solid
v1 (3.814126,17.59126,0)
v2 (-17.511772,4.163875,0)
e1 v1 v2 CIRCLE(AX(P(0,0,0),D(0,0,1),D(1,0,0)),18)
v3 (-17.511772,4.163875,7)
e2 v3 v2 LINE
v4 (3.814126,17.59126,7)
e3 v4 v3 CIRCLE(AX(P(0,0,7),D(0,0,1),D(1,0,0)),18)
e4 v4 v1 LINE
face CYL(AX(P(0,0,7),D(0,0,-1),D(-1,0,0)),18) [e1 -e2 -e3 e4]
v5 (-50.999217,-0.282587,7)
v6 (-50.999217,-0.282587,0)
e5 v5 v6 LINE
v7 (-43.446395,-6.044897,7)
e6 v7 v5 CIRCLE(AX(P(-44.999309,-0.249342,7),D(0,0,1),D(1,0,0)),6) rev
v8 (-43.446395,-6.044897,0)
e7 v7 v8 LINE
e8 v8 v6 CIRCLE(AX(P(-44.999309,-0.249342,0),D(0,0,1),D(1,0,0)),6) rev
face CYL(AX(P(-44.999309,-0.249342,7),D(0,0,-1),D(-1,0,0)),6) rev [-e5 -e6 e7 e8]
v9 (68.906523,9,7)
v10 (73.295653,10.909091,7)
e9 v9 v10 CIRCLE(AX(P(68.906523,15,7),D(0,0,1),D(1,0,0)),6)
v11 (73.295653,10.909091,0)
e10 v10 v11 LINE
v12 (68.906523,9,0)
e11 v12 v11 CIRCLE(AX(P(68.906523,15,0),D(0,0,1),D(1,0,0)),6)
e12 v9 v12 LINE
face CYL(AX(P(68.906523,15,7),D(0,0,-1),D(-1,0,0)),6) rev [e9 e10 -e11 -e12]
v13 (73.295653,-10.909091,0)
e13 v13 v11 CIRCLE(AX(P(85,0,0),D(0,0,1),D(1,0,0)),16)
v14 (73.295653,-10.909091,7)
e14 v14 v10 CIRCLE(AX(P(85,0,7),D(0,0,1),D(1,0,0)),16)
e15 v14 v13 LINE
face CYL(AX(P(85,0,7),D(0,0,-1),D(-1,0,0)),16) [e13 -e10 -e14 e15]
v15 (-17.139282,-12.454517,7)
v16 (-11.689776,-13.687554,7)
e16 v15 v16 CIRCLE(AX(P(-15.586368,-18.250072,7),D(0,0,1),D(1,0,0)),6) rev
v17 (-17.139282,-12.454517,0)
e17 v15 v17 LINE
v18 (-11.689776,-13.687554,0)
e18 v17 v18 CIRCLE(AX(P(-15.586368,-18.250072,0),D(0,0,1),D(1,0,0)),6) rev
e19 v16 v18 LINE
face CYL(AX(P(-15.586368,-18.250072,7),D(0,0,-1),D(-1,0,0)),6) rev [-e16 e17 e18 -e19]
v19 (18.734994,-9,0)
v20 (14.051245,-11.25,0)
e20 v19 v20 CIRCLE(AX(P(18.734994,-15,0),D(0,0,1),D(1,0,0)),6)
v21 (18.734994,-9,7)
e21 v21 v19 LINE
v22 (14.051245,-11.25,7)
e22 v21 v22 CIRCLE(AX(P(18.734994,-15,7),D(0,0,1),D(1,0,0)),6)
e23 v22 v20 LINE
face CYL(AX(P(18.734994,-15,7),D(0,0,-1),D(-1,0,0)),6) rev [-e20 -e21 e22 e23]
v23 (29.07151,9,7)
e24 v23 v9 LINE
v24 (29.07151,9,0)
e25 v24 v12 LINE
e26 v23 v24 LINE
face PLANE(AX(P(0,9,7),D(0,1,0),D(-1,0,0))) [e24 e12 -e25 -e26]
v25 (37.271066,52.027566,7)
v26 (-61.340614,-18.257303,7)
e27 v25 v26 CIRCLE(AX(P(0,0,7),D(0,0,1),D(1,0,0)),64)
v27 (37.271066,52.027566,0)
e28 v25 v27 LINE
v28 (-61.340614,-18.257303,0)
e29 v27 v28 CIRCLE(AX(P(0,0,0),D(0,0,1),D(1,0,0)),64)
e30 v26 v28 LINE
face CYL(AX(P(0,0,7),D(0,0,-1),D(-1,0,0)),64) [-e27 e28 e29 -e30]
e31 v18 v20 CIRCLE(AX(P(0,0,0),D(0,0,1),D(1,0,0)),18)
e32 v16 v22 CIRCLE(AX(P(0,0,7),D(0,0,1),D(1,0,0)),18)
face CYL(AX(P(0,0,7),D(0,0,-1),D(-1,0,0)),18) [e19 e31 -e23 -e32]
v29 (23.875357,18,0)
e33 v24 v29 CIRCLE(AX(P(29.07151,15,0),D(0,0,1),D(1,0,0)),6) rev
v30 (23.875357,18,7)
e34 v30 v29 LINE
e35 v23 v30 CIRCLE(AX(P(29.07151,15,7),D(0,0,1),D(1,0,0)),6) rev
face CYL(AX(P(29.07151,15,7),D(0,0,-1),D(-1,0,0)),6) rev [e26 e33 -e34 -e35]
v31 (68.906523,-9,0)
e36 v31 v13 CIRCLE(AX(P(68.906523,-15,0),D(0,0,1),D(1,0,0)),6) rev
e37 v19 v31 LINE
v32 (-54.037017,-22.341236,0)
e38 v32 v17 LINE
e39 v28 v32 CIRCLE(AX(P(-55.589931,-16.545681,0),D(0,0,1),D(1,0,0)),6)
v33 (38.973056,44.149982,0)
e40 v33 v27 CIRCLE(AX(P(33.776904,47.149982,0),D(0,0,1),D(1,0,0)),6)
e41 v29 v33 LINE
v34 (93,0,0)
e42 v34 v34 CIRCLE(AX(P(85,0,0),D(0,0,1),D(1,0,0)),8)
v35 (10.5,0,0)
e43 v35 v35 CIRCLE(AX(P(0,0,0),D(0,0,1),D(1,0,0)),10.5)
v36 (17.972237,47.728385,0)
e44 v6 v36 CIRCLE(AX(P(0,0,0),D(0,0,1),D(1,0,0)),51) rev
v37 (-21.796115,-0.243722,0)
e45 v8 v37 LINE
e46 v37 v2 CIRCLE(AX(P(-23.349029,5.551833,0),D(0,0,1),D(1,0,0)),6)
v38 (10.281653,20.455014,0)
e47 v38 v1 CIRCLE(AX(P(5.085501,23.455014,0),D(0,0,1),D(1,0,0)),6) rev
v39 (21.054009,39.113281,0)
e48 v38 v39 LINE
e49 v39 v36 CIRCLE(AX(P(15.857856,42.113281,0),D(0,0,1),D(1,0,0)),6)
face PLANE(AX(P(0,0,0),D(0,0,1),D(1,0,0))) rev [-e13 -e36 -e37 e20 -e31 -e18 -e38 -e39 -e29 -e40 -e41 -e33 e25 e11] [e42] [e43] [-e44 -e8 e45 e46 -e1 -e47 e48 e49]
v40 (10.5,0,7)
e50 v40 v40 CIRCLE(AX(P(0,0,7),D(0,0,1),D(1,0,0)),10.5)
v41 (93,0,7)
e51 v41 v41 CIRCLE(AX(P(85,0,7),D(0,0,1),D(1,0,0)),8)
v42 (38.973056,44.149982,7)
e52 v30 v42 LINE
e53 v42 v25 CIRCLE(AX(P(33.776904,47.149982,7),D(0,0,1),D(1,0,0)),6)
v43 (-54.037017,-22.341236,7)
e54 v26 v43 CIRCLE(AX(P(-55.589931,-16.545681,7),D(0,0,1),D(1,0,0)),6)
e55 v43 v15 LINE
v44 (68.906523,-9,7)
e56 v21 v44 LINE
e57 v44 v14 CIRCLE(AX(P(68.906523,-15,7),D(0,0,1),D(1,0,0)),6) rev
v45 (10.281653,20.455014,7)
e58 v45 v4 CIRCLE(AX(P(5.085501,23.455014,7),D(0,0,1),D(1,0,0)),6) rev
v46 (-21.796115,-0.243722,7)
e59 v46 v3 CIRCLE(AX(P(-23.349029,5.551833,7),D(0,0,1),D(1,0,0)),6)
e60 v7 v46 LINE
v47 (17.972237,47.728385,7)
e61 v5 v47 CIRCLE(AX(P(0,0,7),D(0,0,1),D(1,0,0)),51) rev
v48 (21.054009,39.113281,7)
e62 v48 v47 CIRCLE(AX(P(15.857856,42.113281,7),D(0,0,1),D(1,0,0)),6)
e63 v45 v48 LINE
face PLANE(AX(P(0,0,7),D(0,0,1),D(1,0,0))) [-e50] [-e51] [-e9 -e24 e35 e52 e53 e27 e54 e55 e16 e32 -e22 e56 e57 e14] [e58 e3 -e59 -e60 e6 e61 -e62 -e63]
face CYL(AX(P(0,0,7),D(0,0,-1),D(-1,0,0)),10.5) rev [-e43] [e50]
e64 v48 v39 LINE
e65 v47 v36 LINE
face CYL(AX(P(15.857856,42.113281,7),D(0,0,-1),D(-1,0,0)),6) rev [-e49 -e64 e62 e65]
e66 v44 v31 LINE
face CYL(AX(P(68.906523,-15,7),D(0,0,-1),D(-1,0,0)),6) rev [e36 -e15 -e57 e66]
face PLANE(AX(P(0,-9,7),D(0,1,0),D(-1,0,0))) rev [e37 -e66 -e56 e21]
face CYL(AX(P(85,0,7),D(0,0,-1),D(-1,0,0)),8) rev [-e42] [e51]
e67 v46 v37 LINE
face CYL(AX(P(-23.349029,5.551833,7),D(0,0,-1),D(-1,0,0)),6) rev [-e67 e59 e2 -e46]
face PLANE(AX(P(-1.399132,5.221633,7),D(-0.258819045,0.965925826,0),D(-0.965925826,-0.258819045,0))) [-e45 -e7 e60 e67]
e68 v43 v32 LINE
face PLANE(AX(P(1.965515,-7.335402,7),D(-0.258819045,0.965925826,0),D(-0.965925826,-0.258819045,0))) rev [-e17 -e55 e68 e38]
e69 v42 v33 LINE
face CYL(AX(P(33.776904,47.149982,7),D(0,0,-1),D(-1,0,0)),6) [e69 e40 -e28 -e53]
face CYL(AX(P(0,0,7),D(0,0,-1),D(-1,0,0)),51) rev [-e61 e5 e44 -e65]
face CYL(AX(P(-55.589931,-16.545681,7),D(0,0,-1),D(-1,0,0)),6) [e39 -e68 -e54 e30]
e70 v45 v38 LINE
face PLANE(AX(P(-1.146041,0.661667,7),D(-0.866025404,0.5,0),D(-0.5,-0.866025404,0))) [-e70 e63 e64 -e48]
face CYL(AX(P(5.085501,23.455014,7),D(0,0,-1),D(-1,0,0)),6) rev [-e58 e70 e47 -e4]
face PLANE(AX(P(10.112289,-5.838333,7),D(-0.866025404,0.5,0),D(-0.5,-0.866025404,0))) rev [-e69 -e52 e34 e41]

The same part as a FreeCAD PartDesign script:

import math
import FreeCAD as App
import Part
import Sketcher
Q = App.Units.Quantity

doc = App.newDocument("Part")
body = doc.addObject("PartDesign::Body", "Body")

sketch1 = body.newObject("Sketcher::SketchObject", "Sketch")
sketch1.AttachmentSupport = (doc.getObject("XY_Plane"), [""])
sketch1.MapMode = "FlatFace"
sketch1.addGeometry(Part.LineSegment(App.Vector(68.9, 9, 0), App.Vector(29.1, 9, 0)), False)
sketch1.addGeometry(Part.ArcOfCircle(Part.Circle(App.Vector(29.1, 15, 0), App.Vector(0, 0, 1), 6), math.radians(150), math.radians(270)), False)
sketch1.addGeometry(Part.LineSegment(App.Vector(23.9, 18, 0), App.Vector(39, 44.1, 0)), False)
sketch1.addGeometry(Part.ArcOfCircle(Part.Circle(App.Vector(33.8, 47.1, 0), App.Vector(0, 0, 1), 6), math.radians(-30), math.radians(54)), False)
sketch1.addGeometry(Part.ArcOfCircle(Part.Circle(App.Vector(0, 0, 0), App.Vector(0, 0, 1), 64), math.radians(54), math.radians(197)), False)
sketch1.addGeometry(Part.ArcOfCircle(Part.Circle(App.Vector(-55.6, -16.5, 0), App.Vector(0, 0, 1), 6), math.radians(-163), math.radians(-75)), False)
sketch1.addGeometry(Part.LineSegment(App.Vector(-54, -22.3, 0), App.Vector(-17.1, -12.5, 0)), False)
sketch1.addGeometry(Part.ArcOfCircle(Part.Circle(App.Vector(-15.6, -18.3, 0), App.Vector(0, 0, 1), 6), math.radians(50), math.radians(105)), False)
sketch1.addGeometry(Part.ArcOfCircle(Part.Circle(App.Vector(0, 0, 0), App.Vector(0, 0, 1), 18), math.radians(-130), math.radians(-39)), False)
sketch1.addGeometry(Part.ArcOfCircle(Part.Circle(App.Vector(18.7, -15, 0), App.Vector(0, 0, 1), 6), math.radians(90), math.radians(141)), False)
sketch1.addGeometry(Part.LineSegment(App.Vector(18.7, -9, 0), App.Vector(68.9, -9, 0)), False)
sketch1.addGeometry(Part.ArcOfCircle(Part.Circle(App.Vector(68.9, -15, 0), App.Vector(0, 0, 1), 6), math.radians(43), math.radians(90)), False)
sketch1.addGeometry(Part.ArcOfCircle(Part.Circle(App.Vector(85, 0, 0), App.Vector(0, 0, 1), 16), math.radians(-137), math.radians(137)), False)
sketch1.addGeometry(Part.ArcOfCircle(Part.Circle(App.Vector(68.9, 15, 0), App.Vector(0, 0, 1), 6), math.radians(-90), math.radians(-43)), False)
sketch1.addGeometry(Part.ArcOfCircle(Part.Circle(App.Vector(-23.3, 5.6, 0), App.Vector(0, 0, 1), 6), math.radians(-75), math.radians(-13)), False)
sketch1.addGeometry(Part.LineSegment(App.Vector(-21.8, -0.2, 0), App.Vector(-43.4, -6, 0)), False)
sketch1.addGeometry(Part.ArcOfCircle(Part.Circle(App.Vector(-45, -0.2, 0), App.Vector(0, 0, 1), 6), math.radians(-180), math.radians(-75)), False)
sketch1.addGeometry(Part.ArcOfCircle(Part.Circle(App.Vector(0, 0, 0), App.Vector(0, 0, 1), 51), math.radians(69), math.radians(180)), False)
sketch1.addGeometry(Part.ArcOfCircle(Part.Circle(App.Vector(15.9, 42.1, 0), App.Vector(0, 0, 1), 6), math.radians(-30), math.radians(69)), False)
sketch1.addGeometry(Part.LineSegment(App.Vector(21.1, 39.1, 0), App.Vector(10.3, 20.5, 0)), False)
sketch1.addGeometry(Part.ArcOfCircle(Part.Circle(App.Vector(5.1, 23.5, 0), App.Vector(0, 0, 1), 6), math.radians(-102), math.radians(-30)), False)
sketch1.addGeometry(Part.ArcOfCircle(Part.Circle(App.Vector(0, 0, 0), App.Vector(0, 0, 1), 18), math.radians(78), math.radians(167)), False)
sketch1.addGeometry(Part.Circle(App.Vector(0, 0, 0), App.Vector(0, 0, 1), 10.5), False)
sketch1.addGeometry(Part.Circle(App.Vector(85, 0, 0), App.Vector(0, 0, 1), 8), False)
sketch1.addConstraint(Sketcher.Constraint("Tangent", 0, 2, 1, 2))
sketch1.addConstraint(Sketcher.Constraint("Tangent", 1, 1, 2, 1))
sketch1.addConstraint(Sketcher.Constraint("Tangent", 2, 2, 3, 1))
sketch1.addConstraint(Sketcher.Constraint("Tangent", 3, 2, 4, 1))
sketch1.addConstraint(Sketcher.Constraint("Tangent", 4, 2, 5, 1))
sketch1.addConstraint(Sketcher.Constraint("Tangent", 5, 2, 6, 1))
sketch1.addConstraint(Sketcher.Constraint("Tangent", 6, 2, 7, 2))
sketch1.addConstraint(Sketcher.Constraint("Tangent", 7, 1, 8, 1))
sketch1.addConstraint(Sketcher.Constraint("Tangent", 8, 2, 9, 2))
sketch1.addConstraint(Sketcher.Constraint("Tangent", 9, 1, 10, 1))
sketch1.addConstraint(Sketcher.Constraint("Tangent", 10, 2, 11, 2))
sketch1.addConstraint(Sketcher.Constraint("Tangent", 11, 1, 12, 1))
sketch1.addConstraint(Sketcher.Constraint("Tangent", 12, 2, 13, 2))
sketch1.addConstraint(Sketcher.Constraint("Tangent", 13, 1, 0, 1))
sketch1.addConstraint(Sketcher.Constraint("Tangent", 14, 1, 15, 1))
sketch1.addConstraint(Sketcher.Constraint("Tangent", 15, 2, 16, 2))
sketch1.addConstraint(Sketcher.Constraint("Tangent", 16, 1, 17, 2))
sketch1.addConstraint(Sketcher.Constraint("Tangent", 17, 1, 18, 2))
sketch1.addConstraint(Sketcher.Constraint("Tangent", 18, 1, 19, 1))
sketch1.addConstraint(Sketcher.Constraint("Tangent", 19, 2, 20, 2))
sketch1.addConstraint(Sketcher.Constraint("Tangent", 20, 1, 21, 1))
sketch1.addConstraint(Sketcher.Constraint("Tangent", 21, 2, 14, 2))
sketch1.addConstraint(Sketcher.Constraint("Horizontal", 0))
sketch1.addConstraint(Sketcher.Constraint("Horizontal", 10))
sketch1.addConstraint(Sketcher.Constraint("Coincident", 4, 3, -1, 1))
sketch1.addConstraint(Sketcher.Constraint("Coincident", 8, 3, -1, 1))
sketch1.addConstraint(Sketcher.Constraint("Coincident", 17, 3, -1, 1))
sketch1.addConstraint(Sketcher.Constraint("Coincident", 21, 3, -1, 1))
sketch1.addConstraint(Sketcher.Constraint("Coincident", 22, 3, -1, 1))
sketch1.addConstraint(Sketcher.Constraint("Coincident", 23, 3, 12, 3))
sketch1.addConstraint(Sketcher.Constraint("Equal", 1, 3))
sketch1.addConstraint(Sketcher.Constraint("Equal", 3, 5))
sketch1.addConstraint(Sketcher.Constraint("Equal", 5, 7))
sketch1.addConstraint(Sketcher.Constraint("Equal", 7, 9))
sketch1.addConstraint(Sketcher.Constraint("Equal", 9, 11))
sketch1.addConstraint(Sketcher.Constraint("Equal", 11, 13))
sketch1.addConstraint(Sketcher.Constraint("Equal", 13, 14))
sketch1.addConstraint(Sketcher.Constraint("Equal", 14, 16))
sketch1.addConstraint(Sketcher.Constraint("Equal", 16, 18))
sketch1.addConstraint(Sketcher.Constraint("Equal", 18, 20))
sketch1.addConstraint(Sketcher.Constraint("Equal", 8, 21))
sketch1.addConstraint(Sketcher.Constraint("Symmetric", 11, 3, 13, 3, -1))
sketch1.addConstraint(Sketcher.Constraint("Parallel", 6, 15))
sketch1.addConstraint(Sketcher.Constraint("Parallel", 2, 19))
sketch1.addConstraint(Sketcher.Constraint("Diameter", 22, Q("21 mm")))
sketch1.addConstraint(Sketcher.Constraint("Diameter", 23, Q("16 mm")))
sketch1.addConstraint(Sketcher.Constraint("Radius", 1, Q("6 mm")))
sketch1.addConstraint(Sketcher.Constraint("Radius", 4, Q("64 mm")))
sketch1.addConstraint(Sketcher.Constraint("Radius", 8, Q("18 mm")))
sketch1.addConstraint(Sketcher.Constraint("Radius", 12, Q("16 mm")))
sketch1.addConstraint(Sketcher.Constraint("Radius", 17, Q("51 mm")))
sketch1.addConstraint(Sketcher.Constraint("Angle", 2, Q("60 deg")))
sketch1.addConstraint(Sketcher.Constraint("Angle", 6, Q("15 deg")))
sketch1.addConstraint(Sketcher.Constraint("DistanceY", -1, 1, 1, 3, Q("15 mm")))
sketch1.addConstraint(Sketcher.Constraint("DistanceX", -1, 1, 12, 3, Q("85 mm")))
sketch1.addConstraint(Sketcher.Constraint("DistanceX", -1, 1, 20, 3, Q("5.085501 mm")))
sketch1.addConstraint(Sketcher.Constraint("DistanceY", 18, 3, 3, 3, Q("5.036701 mm")))
sketch1.addConstraint(Sketcher.Constraint("DistanceX", 5, 2, 16, 1, Q("3.0378 mm")))
sketch1.addConstraint(Sketcher.Constraint("Distance", 15, Q("22.41402 mm")))
pad1 = body.newObject("PartDesign::Pad", "Pad")
pad1.Profile = sketch1
pad1.Length = 7

doc.recompute()
